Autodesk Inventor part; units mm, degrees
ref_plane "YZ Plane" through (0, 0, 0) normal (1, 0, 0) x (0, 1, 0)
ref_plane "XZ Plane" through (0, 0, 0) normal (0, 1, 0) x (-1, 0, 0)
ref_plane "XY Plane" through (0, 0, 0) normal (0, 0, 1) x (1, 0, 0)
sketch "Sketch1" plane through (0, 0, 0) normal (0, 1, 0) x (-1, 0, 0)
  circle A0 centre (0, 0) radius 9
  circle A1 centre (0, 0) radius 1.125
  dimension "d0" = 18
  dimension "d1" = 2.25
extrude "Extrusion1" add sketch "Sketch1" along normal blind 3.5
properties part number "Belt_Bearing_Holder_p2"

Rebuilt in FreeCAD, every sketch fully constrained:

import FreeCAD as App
import Part
import Sketcher
from FreeCAD import Vector

doc = App.newDocument("Part")
body = doc.addObject("PartDesign::Body", "Body")

sketch1 = body.newObject("Sketcher::SketchObject", "Sketch")
sketch1.AttachmentSupport = (doc.getObject("XZ_Plane"), [""])
sketch1.MapMode = "FlatFace"
sketch1.addGeometry([
    Part.Circle(Vector(0, 0, 0), Vector(0, 0, 1), 9),
    Part.Circle(Vector(0, 0, 0), Vector(0, 0, 1), 1.125),
], False)
sketch1.addConstraint([
    Sketcher.Constraint("Coincident", 0, 3, -1, 1),
    Sketcher.Constraint("Coincident", 1, 3, -1, 1),
    Sketcher.Constraint("Diameter", 0, 18.0),
    Sketcher.Constraint("Diameter", 1, 2.25),
])
pad1 = body.newObject("PartDesign::Pad", "Pad")
pad1.Profile = sketch1
pad1.Length = 3.5
pad1.Reversed = True

doc.recompute()
